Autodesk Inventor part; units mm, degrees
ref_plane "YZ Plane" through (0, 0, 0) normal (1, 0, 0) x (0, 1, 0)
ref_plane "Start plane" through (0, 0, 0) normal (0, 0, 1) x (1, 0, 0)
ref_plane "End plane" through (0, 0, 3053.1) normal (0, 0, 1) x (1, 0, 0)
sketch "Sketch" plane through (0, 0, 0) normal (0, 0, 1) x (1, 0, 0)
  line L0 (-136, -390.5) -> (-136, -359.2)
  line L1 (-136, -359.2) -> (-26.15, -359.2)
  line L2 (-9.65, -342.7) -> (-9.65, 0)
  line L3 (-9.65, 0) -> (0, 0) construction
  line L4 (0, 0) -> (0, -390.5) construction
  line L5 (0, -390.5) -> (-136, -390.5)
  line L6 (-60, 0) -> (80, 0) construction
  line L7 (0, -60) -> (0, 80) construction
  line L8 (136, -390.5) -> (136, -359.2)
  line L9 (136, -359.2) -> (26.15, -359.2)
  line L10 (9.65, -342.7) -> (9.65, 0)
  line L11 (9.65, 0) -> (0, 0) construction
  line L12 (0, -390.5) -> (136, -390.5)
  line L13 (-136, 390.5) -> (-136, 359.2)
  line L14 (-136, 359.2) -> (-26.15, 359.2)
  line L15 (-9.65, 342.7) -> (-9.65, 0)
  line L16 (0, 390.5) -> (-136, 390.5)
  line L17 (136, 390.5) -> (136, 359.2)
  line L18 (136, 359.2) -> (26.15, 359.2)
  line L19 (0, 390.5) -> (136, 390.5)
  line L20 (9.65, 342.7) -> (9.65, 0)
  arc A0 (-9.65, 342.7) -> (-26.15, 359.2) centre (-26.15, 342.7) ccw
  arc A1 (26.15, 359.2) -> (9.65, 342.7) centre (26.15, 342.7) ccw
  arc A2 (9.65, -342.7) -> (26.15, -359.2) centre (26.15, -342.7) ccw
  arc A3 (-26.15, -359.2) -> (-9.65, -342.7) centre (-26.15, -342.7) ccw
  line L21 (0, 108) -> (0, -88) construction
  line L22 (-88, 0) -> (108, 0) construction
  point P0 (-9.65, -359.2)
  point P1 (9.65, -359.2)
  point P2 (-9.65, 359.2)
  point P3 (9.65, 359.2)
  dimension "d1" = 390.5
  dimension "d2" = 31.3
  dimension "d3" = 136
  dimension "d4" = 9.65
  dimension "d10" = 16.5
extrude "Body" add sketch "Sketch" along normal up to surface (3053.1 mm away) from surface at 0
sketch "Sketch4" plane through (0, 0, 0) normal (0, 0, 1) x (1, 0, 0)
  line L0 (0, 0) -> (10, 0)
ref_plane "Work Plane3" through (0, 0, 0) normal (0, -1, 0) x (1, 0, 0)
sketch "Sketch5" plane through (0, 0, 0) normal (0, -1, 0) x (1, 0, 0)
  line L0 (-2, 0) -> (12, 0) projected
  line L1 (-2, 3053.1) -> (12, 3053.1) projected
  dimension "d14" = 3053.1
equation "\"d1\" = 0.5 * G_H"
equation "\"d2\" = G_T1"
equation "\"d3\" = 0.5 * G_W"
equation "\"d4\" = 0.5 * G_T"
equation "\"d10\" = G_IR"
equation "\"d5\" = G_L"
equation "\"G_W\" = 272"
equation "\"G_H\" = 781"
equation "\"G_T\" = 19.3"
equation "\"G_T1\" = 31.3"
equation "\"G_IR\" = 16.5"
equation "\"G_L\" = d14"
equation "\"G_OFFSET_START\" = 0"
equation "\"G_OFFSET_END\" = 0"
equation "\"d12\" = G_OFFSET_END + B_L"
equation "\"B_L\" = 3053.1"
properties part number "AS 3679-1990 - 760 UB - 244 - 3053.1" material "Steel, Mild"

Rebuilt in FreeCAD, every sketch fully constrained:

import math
import FreeCAD as App
import Part
import Sketcher

V = App.Vector

doc = App.newDocument("Part")
body = doc.addObject("PartDesign::Body", "Body")

# Sketch on XY plane
sketch1 = body.newObject("Sketcher::SketchObject", "Sketch")
sketch1.AttachmentSupport = (doc.getObject("XY_Plane"), [""])
sketch1.MapMode = "FlatFace"
sketch1.addGeometry([
    Part.LineSegment(V(-136, -359, 0), V(-136, -390, 0)),  # 0
    Part.LineSegment(V(-136, -390, 0), V(136, -390, 0)),  # 1
    Part.LineSegment(V(136, -390, 0), V(136, -359, 0)),  # 2
    Part.LineSegment(V(136, -359, 0), V(26, -359, 0)),  # 3
    Part.ArcOfCircle(Part.Circle(V(26, -343, 0), V(0, 0, 1), 16), math.radians(180), math.radians(270)),  # 4
    Part.LineSegment(V(10, -343, 0), V(10, 343, 0)),  # 5
    Part.ArcOfCircle(Part.Circle(V(26, 343, 0), V(0, 0, 1), 16), math.radians(90), math.radians(180)),  # 6
    Part.LineSegment(V(26, 359, 0), V(136, 359, 0)),  # 7
    Part.LineSegment(V(136, 359, 0), V(136, 390, 0)),  # 8
    Part.LineSegment(V(136, 390, 0), V(-136, 390, 0)),  # 9
    Part.LineSegment(V(-136, 390, 0), V(-136, 359, 0)),  # 10
    Part.LineSegment(V(-136, 359, 0), V(-26, 359, 0)),  # 11
    Part.ArcOfCircle(Part.Circle(V(-26, 343, 0), V(0, 0, 1), 16), math.radians(0), math.radians(90)),  # 12
    Part.LineSegment(V(-10, 343, 0), V(-10, -343, 0)),  # 13
    Part.ArcOfCircle(Part.Circle(V(-26, -343, 0), V(0, 0, 1), 16), math.radians(-90), math.radians(0)),  # 14
    Part.LineSegment(V(-26, -359, 0), V(-136, -359, 0)),  # 15
], False)
sketch1.addConstraint([
    Sketcher.Constraint("Coincident", 0, 2, 1, 1),
    Sketcher.Constraint("Coincident", 1, 2, 2, 1),
    Sketcher.Constraint("Coincident", 2, 2, 3, 1),
    Sketcher.Constraint("Tangent", 3, 2, 4, 2),
    Sketcher.Constraint("Tangent", 4, 1, 5, 1),
    Sketcher.Constraint("Tangent", 5, 2, 6, 2),
    Sketcher.Constraint("Tangent", 6, 1, 7, 1),
    Sketcher.Constraint("Coincident", 7, 2, 8, 1),
    Sketcher.Constraint("Coincident", 8, 2, 9, 1),
    Sketcher.Constraint("Coincident", 9, 2, 10, 1),
    Sketcher.Constraint("Coincident", 10, 2, 11, 1),
    Sketcher.Constraint("Tangent", 11, 2, 12, 2),
    Sketcher.Constraint("Tangent", 12, 1, 13, 1),
    Sketcher.Constraint("Tangent", 13, 2, 14, 2),
    Sketcher.Constraint("Tangent", 14, 1, 15, 1),
    Sketcher.Constraint("Coincident", 15, 2, 0, 1),
    Sketcher.Constraint("Vertical", 0),
    Sketcher.Constraint("Horizontal", 1),
    Sketcher.Constraint("Vertical", 2),
    Sketcher.Constraint("Horizontal", 3),
    Sketcher.Constraint("Vertical", 5),
    Sketcher.Constraint("Horizontal", 7),
    Sketcher.Constraint("Vertical", 8),
    Sketcher.Constraint("Horizontal", 9),
    Sketcher.Constraint("Vertical", 10),
    Sketcher.Constraint("Horizontal", 11),
    Sketcher.Constraint("Vertical", 13),
    Sketcher.Constraint("Horizontal", 15),
    Sketcher.Constraint("Equal", 4, 6),
    Sketcher.Constraint("Equal", 6, 12),
    Sketcher.Constraint("Equal", 12, 14),
    Sketcher.Constraint("Symmetric", 4, 3, 12, 3, -1, 1),
    Sketcher.Constraint("Symmetric", 0, 2, 8, 2, -1, 1),
    Sketcher.Constraint("Symmetric", 7, 2, 10, 2, -2),
    Sketcher.Constraint("Symmetric", 2, 2, 15, 2, -2),
    Sketcher.Constraint("Radius", 4, 16.5),
    Sketcher.Constraint("DistanceY", 0, 2, 0, 1, 31.3),
    Sketcher.Constraint("DistanceX", 0, 2, -1, 1, 136.0),
    Sketcher.Constraint("DistanceY", 0, 2, -1, 1, 390.5),
    Sketcher.Constraint("DistanceX", -1, 1, 4, 1, 9.65),
])
pad1 = body.newObject("PartDesign::Pad", "Pad")
pad1.Profile = sketch1
pad1.Length = 3053.1

doc.recompute()
